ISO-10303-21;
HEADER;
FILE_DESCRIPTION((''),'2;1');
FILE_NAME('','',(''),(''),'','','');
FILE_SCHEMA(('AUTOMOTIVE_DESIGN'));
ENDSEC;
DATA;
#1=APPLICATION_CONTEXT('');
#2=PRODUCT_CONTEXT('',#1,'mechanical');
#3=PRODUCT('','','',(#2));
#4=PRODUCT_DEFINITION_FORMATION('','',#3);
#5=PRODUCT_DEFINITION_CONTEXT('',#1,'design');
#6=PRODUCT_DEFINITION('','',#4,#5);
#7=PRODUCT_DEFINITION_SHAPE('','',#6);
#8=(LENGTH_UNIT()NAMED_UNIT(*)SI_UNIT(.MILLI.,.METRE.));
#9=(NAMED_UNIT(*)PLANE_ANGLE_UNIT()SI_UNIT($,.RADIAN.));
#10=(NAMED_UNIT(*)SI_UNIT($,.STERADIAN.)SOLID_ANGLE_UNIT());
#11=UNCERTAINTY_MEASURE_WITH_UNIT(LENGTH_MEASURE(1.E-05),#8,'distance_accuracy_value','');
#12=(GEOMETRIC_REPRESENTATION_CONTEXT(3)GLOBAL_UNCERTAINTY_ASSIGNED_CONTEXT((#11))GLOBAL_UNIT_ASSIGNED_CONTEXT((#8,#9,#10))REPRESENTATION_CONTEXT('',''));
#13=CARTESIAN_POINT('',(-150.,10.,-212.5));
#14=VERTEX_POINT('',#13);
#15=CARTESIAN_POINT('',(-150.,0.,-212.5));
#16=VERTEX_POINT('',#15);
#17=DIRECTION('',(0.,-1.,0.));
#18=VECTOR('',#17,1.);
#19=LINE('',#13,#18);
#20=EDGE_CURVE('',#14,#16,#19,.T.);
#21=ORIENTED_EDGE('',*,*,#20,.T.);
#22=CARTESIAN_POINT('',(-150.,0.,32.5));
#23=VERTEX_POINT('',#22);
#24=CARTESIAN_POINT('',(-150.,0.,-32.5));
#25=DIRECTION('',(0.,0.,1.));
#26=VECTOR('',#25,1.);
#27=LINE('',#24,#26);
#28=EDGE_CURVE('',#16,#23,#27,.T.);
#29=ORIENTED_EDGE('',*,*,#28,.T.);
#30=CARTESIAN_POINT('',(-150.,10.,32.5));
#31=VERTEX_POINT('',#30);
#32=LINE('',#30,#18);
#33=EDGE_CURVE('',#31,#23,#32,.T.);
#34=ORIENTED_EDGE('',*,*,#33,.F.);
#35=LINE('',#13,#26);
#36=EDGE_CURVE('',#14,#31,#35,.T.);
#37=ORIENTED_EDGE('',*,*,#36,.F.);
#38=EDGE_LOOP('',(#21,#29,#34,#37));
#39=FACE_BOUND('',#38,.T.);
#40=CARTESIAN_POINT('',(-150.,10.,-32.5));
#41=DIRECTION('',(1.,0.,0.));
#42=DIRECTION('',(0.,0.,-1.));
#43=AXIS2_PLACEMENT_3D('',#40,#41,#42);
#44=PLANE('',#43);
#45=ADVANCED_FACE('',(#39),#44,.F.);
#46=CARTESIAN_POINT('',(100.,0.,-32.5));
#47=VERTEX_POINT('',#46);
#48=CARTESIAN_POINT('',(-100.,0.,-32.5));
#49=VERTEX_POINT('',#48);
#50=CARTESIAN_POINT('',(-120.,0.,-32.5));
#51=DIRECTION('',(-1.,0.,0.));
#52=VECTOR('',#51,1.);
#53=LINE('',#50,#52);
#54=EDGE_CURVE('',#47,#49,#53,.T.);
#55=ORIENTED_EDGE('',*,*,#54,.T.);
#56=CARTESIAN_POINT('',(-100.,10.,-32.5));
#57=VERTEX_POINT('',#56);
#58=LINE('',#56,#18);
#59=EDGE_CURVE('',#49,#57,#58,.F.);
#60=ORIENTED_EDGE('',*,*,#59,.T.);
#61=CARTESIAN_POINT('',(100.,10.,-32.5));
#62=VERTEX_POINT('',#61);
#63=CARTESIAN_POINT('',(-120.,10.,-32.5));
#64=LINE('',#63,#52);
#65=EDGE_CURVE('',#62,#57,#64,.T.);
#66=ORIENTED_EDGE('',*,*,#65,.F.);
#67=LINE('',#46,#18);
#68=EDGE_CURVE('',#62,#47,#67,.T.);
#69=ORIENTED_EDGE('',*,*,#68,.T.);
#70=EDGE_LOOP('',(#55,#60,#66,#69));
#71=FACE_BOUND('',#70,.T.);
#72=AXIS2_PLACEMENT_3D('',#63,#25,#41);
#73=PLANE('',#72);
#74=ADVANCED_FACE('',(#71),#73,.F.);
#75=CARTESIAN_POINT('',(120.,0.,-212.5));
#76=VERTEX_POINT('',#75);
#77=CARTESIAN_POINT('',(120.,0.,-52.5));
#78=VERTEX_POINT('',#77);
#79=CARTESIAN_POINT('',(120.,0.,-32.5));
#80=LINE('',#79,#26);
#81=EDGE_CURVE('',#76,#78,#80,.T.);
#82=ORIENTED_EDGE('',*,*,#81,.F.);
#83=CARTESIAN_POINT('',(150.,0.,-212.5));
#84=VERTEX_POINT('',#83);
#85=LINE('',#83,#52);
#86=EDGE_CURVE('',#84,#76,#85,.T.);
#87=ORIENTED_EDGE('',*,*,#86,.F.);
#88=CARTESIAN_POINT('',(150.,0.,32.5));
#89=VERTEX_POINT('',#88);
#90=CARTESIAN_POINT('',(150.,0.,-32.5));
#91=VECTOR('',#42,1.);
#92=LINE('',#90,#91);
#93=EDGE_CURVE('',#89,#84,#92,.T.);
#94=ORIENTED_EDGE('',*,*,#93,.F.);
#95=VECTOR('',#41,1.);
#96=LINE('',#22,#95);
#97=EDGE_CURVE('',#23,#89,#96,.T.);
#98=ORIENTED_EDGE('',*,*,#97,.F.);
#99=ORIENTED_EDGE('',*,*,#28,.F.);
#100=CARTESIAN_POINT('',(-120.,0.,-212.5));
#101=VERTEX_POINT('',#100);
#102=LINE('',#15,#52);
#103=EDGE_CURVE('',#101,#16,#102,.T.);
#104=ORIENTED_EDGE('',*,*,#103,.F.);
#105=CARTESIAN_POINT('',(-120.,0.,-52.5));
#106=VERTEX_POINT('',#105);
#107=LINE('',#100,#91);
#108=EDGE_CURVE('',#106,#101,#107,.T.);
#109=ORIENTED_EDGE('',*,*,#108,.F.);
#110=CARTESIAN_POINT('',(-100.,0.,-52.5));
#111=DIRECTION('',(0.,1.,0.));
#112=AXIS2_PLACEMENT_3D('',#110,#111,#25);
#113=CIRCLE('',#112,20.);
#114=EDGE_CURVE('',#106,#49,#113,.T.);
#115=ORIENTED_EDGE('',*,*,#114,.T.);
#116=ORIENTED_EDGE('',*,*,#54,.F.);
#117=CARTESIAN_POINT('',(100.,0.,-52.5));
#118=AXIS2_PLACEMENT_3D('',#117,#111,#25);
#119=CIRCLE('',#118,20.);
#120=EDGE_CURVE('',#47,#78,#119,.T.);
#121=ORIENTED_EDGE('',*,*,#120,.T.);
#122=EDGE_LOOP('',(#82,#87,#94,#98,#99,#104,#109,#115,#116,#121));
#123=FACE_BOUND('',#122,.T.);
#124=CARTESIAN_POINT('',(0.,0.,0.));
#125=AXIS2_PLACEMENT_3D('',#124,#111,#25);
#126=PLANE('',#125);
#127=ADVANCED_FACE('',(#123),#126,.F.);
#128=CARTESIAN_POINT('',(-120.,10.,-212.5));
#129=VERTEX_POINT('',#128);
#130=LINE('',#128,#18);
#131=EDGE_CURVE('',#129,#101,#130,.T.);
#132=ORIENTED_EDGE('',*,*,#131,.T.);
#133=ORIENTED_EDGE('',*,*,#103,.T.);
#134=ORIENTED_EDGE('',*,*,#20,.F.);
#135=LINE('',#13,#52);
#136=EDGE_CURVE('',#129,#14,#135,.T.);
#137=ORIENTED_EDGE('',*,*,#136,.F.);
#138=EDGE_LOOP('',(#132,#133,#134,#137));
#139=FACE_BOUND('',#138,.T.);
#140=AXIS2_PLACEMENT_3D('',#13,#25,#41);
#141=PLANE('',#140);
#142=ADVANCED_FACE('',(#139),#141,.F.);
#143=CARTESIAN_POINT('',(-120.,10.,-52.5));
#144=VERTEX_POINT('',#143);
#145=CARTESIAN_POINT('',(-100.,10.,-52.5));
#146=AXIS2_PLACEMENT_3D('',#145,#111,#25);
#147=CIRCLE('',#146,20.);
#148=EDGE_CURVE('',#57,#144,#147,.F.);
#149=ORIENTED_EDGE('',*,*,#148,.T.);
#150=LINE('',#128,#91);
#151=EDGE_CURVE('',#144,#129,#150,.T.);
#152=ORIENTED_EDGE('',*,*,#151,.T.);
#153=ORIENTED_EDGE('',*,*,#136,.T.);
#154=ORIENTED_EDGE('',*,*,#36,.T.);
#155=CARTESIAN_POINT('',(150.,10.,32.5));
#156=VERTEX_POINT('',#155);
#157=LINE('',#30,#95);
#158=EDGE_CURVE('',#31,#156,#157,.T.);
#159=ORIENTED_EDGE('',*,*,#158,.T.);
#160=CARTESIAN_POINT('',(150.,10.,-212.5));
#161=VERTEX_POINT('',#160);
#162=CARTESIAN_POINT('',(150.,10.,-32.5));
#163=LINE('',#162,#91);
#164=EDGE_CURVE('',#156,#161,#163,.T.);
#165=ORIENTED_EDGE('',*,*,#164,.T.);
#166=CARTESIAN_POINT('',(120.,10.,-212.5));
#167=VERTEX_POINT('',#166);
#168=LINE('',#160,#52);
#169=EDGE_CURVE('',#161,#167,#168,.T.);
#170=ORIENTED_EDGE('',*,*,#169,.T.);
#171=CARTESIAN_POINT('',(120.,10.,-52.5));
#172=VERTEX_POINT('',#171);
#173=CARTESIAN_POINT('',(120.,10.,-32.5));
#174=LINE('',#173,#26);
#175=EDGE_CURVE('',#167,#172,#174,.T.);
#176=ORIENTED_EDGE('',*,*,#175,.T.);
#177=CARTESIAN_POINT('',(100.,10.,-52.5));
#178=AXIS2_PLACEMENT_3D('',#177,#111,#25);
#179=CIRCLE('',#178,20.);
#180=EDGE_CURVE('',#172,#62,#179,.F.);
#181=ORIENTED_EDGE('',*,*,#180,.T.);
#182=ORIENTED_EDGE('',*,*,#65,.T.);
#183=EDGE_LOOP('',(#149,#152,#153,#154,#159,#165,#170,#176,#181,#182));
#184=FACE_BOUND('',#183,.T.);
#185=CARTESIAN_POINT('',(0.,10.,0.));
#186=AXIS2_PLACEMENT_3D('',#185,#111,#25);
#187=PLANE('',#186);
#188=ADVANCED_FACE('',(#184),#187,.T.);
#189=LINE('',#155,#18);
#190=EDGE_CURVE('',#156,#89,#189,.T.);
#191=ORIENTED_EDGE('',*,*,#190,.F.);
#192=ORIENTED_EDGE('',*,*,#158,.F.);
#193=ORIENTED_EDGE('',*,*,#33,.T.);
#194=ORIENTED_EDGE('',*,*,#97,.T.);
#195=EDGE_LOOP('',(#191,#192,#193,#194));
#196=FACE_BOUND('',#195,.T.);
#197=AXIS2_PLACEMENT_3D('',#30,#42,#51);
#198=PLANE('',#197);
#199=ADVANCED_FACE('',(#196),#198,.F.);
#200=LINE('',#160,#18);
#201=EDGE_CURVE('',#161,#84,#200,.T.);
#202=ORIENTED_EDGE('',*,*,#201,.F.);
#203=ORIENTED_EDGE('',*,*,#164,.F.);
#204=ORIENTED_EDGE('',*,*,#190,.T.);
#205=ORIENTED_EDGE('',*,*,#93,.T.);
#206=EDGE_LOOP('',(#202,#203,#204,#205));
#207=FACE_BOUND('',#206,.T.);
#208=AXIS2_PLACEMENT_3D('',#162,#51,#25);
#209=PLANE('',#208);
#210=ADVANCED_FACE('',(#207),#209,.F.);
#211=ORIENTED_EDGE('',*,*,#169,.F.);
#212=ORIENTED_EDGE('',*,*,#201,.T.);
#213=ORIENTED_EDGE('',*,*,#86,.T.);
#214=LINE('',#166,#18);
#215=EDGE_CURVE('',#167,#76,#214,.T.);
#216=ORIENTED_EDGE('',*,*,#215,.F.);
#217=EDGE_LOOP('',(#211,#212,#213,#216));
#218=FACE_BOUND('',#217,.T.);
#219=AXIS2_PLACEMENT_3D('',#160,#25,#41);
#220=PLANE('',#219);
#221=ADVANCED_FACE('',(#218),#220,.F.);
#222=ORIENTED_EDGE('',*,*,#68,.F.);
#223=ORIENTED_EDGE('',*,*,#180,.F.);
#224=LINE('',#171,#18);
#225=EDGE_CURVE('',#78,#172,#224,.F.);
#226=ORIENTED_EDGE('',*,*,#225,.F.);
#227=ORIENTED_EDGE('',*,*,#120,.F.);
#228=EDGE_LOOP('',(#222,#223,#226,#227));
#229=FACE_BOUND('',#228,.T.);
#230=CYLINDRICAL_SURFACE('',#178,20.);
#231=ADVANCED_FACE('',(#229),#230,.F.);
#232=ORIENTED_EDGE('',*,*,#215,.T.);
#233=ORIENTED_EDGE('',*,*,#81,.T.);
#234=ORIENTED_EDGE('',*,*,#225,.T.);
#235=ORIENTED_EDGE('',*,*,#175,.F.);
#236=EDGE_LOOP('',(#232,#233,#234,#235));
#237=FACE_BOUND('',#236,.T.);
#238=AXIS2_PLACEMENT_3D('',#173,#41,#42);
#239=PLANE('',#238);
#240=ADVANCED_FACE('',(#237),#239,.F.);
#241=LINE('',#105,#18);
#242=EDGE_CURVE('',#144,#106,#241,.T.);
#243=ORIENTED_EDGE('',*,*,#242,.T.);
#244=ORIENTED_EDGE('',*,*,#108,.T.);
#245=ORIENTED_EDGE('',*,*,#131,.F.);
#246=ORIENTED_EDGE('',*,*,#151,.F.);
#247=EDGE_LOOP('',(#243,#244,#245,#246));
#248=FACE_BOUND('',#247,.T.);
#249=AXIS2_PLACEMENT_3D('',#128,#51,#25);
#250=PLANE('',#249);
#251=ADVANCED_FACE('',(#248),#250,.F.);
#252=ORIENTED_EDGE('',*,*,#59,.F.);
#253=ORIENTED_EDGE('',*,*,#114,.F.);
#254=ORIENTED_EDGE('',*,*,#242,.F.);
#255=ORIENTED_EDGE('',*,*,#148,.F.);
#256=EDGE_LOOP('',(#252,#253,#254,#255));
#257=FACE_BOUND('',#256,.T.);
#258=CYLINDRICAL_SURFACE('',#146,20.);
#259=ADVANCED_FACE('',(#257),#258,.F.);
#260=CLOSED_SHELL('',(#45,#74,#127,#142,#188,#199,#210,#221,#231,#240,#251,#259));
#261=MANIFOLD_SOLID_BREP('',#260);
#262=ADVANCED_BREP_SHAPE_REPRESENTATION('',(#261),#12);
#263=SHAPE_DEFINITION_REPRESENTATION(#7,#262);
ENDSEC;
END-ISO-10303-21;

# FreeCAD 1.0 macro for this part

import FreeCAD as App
import Part
import Sketcher

V = App.Vector
Q = App.Units.Quantity


def edges_at(feature, points):
    """Names of the edges that pass closest to the given points."""
    edges = feature.Shape.Edges
    near = lambda p: min(range(len(edges)), key=lambda i: edges[i].distToShape(Part.Vertex(*p))[0])
    return sorted({f"Edge{near(p) + 1}" for p in points})

doc = App.newDocument("Part")
body = doc.addObject("PartDesign::Body", "Body")

# Sketch on XZ plane
sketch1 = body.newObject("Sketcher::SketchObject", "Sketch")
sketch1.AttachmentSupport = (doc.getObject("XZ_Plane"), [""])
sketch1.MapMode = "FlatFace"
sketch1.addGeometry([
    Part.LineSegment(V(120, -32.5, 0), V(-120, -32.5, 0)),  # 0
    Part.LineSegment(V(-120, -32.5, 0), V(-120, -212.5, 0)),  # 1
    Part.LineSegment(V(-120, -212.5, 0), V(-150, -212.5, 0)),  # 2
    Part.LineSegment(V(-150, -212.5, 0), V(-150, 32.5, 0)),  # 3
    Part.LineSegment(V(-150, 32.5, 0), V(150, 32.5, 0)),  # 4
    Part.LineSegment(V(150, 32.5, 0), V(150, -212.5, 0)),  # 5
    Part.LineSegment(V(150, -212.5, 0), V(120, -212.5, 0)),  # 6
    Part.LineSegment(V(120, -212.5, 0), V(120, -32.5, 0)),  # 7
], False)
sketch1.addConstraint([
    Sketcher.Constraint("Coincident", 0, 2, 1, 1),
    Sketcher.Constraint("Coincident", 1, 2, 2, 1),
    Sketcher.Constraint("Coincident", 2, 2, 3, 1),
    Sketcher.Constraint("Coincident", 3, 2, 4, 1),
    Sketcher.Constraint("Coincident", 4, 2, 5, 1),
    Sketcher.Constraint("Coincident", 5, 2, 6, 1),
    Sketcher.Constraint("Coincident", 6, 2, 7, 1),
    Sketcher.Constraint("Coincident", 7, 2, 0, 1),
    Sketcher.Constraint("Horizontal", 0),
    Sketcher.Constraint("Vertical", 1),
    Sketcher.Constraint("Horizontal", 2),
    Sketcher.Constraint("Vertical", 3),
    Sketcher.Constraint("Horizontal", 4),
    Sketcher.Constraint("Vertical", 5),
    Sketcher.Constraint("Horizontal", 6),
    Sketcher.Constraint("Vertical", 7),
    Sketcher.Constraint("Symmetric", 2, 2, 5, 2, -2),
    Sketcher.Constraint("Equal", 2, 6),
    Sketcher.Constraint("DistanceX", 0, 2, 0, 1, Q("240 mm")),
    Sketcher.Constraint("DistanceX", 2, 2, 2, 1, Q("30 mm")),
    Sketcher.Constraint("DistanceY", 1, 2, 1, 1, Q("180 mm")),
    Sketcher.Constraint("DistanceY", 3, 1, 3, 2, Q("245 mm")),
    Sketcher.Constraint("DistanceY", 0, 2, -1, 1, Q("32.5 mm")),
])
pad1 = body.newObject("PartDesign::Pad", "Pad")
pad1.Profile = sketch1
pad1.Length = 10
pad1.Reversed = True
doc.recompute()

fillet = body.newObject("PartDesign::Fillet", "Fillet")
fillet.Base = (pad1, edges_at(pad1, [(-120, 5, -32.5), (120, 5, -32.5)]))
fillet.Radius = 20

doc.recompute()
